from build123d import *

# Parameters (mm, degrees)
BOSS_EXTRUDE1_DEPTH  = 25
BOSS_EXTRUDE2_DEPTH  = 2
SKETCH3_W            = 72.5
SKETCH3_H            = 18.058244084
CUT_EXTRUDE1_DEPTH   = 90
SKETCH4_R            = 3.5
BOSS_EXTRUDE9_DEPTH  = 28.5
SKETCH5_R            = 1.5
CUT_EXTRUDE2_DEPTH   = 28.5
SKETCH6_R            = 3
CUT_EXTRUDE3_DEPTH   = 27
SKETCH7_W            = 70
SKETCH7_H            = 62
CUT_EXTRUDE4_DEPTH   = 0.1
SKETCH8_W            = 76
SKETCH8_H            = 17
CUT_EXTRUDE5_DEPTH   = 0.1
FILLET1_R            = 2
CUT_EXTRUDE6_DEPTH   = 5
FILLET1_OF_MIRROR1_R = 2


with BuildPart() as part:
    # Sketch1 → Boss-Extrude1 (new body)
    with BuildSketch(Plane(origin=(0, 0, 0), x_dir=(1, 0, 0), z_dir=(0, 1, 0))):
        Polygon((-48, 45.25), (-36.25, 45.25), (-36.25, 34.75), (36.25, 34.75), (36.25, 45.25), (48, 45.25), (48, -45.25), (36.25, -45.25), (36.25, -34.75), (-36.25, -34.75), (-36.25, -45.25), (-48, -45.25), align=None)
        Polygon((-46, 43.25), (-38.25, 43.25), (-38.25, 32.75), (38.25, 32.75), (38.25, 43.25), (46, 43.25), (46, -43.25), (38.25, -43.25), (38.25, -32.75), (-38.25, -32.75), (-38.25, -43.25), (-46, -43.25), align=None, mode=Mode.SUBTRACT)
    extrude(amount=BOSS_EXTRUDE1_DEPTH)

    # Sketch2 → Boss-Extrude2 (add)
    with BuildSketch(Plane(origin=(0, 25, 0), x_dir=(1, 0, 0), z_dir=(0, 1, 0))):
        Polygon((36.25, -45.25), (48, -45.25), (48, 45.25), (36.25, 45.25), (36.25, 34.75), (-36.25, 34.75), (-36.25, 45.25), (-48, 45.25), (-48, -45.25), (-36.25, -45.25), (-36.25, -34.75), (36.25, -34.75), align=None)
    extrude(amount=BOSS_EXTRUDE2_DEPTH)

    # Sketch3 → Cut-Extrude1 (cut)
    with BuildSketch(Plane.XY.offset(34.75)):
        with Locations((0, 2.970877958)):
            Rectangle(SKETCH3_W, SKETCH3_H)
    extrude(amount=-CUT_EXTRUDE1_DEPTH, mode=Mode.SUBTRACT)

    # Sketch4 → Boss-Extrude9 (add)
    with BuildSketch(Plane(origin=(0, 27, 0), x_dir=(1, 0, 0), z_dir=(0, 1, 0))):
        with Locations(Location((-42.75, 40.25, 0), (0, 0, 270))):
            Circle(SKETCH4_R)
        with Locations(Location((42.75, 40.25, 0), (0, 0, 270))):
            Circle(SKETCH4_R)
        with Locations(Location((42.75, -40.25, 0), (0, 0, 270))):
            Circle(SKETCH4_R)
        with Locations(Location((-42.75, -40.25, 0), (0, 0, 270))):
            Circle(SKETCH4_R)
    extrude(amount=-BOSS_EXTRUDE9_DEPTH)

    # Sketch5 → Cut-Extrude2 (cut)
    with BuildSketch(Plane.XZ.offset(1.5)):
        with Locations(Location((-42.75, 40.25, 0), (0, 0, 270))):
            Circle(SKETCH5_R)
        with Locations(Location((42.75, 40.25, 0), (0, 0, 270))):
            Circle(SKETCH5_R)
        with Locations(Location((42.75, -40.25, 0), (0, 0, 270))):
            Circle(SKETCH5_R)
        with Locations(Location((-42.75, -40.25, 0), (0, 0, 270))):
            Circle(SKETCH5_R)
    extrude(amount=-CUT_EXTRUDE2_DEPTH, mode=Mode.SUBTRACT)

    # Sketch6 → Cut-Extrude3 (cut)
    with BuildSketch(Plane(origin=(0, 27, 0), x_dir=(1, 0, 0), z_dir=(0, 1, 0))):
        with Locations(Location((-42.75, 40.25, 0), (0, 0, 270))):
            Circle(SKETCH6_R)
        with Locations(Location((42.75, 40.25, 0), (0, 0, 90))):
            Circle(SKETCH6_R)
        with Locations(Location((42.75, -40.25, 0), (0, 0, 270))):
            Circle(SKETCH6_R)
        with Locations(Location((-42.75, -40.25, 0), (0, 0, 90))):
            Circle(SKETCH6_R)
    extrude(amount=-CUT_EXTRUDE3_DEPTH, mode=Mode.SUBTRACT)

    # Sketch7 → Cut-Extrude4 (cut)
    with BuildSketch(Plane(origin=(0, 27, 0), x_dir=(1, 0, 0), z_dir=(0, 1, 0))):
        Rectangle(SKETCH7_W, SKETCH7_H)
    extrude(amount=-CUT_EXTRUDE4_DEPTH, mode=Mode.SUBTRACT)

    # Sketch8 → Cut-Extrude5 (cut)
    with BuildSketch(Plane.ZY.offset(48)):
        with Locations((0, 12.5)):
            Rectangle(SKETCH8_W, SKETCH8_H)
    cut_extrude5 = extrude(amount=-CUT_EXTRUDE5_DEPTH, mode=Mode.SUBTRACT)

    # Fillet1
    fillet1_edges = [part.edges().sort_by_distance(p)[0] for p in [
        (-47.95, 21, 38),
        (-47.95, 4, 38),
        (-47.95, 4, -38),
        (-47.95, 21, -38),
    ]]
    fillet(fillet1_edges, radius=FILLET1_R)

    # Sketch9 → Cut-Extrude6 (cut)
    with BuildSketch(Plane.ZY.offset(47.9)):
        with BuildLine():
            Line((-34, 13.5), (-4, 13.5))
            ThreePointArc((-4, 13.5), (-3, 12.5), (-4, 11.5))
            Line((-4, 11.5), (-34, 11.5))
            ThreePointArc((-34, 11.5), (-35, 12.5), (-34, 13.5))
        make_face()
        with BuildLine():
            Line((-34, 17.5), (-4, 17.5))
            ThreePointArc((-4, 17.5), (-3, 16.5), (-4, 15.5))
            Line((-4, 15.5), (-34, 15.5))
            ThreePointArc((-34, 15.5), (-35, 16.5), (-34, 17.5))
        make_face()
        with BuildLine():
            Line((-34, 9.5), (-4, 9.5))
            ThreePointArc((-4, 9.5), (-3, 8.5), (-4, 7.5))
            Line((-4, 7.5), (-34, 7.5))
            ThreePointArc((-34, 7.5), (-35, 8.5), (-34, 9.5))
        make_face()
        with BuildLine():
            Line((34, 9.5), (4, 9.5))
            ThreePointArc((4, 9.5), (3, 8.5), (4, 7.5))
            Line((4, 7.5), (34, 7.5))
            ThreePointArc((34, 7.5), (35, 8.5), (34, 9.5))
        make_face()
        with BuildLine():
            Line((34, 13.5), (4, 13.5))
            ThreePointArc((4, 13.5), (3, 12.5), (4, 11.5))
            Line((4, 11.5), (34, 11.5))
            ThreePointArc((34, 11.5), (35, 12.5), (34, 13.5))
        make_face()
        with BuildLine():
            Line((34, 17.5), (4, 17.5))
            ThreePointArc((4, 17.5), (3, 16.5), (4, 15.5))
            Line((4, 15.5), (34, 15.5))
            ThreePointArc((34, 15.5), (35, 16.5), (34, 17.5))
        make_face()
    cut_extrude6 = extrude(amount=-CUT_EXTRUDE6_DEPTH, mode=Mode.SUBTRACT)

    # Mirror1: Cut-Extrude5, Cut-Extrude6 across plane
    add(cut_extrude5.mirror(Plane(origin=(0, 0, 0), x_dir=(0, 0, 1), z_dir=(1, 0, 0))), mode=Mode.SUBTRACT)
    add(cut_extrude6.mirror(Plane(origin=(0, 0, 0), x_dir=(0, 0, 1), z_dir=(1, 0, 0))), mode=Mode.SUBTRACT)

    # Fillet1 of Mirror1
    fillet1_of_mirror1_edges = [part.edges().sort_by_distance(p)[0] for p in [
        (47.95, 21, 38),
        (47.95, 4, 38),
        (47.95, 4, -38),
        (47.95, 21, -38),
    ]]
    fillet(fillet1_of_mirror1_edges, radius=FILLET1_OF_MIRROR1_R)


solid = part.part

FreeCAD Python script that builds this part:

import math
import FreeCAD as App
import Part
import Sketcher
Q = App.Units.Quantity


def edges_at(feature, points):
    """Names of the edges that pass closest to the given points."""
    edges = feature.Shape.Edges
    near = lambda p: min(range(len(edges)), key=lambda i: edges[i].distToShape(Part.Vertex(*p))[0])
    return sorted({f"Edge{near(p) + 1}" for p in points})


def add_polygon(sketch, points):
    """Adds a closed chain of lines whose ends are joined by coincident constraints."""
    first, n = sketch.GeometryCount, len(points)
    for a, b in zip(points, points[1:] + points[:1]):
        sketch.addGeometry(Part.LineSegment(App.Vector(*a, 0), App.Vector(*b, 0)), False)
    for i in range(n):
        sketch.addConstraint(Sketcher.Constraint("Coincident", first + i, 2, first + (i + 1) % n, 1))

doc = App.newDocument("Part")
params = doc.addObject("Spreadsheet::Sheet", "Params")
for row, (alias, value) in enumerate([
    ("sketch1_width", "72.5 mm"),
    ("sketch1_width2", "76.5 mm"),
    ("sketch1_height", "90.5 mm"),
    ("sketch1_height2", "10.5 mm"),
    ("sketch1_height3", "86.5 mm"),
    ("pad1_length", "25 mm"),
    ("sketch2_width", "72.5 mm"),
    ("sketch2_height", "90.5 mm"),
    ("sketch2_height2", "10.5 mm"),
    ("pad2_length", "2 mm"),
    ("sketch3_width", "72.5 mm"),
    ("pocket1_length", "90 mm"),
    ("sketch4_diameter", "7 mm"),
    ("pad3_length", "28.5 mm"),
    ("sketch5_diameter", "3 mm"),
    ("pocket2_length", "28.5 mm"),
    ("sketch6_diameter", "6 mm"),
    ("pocket3_length", "27 mm"),
    ("sketch7_width", "70 mm"),
    ("sketch7_height", "62 mm"),
    ("pocket4_length", "0.1 mm"),
    ("sketch8_width", "17 mm"),
    ("sketch8_height", "76 mm"),
    ("pocket5_length", "0.1 mm"),
    ("fillet_radius", "2 mm"),
    ("sketch9_radius", "1 mm"),
    ("sketch9_height", "30 mm"),
    ("pocket6_length", "5 mm"),
    ("fillet2_radius", "2 mm"),
], start=1):
    params.set(f"A{row}", alias)
    params.set(f"B{row}", "=" + value)
    params.setAlias(f"B{row}", alias)

body = doc.addObject("PartDesign::Body", "Body")

# Sketch on XZ plane
sketch1 = body.newObject("Sketcher::SketchObject", "Sketch")
sketch1.AttachmentSupport = (doc.getObject("XZ_Plane"), [""])
sketch1.MapMode = "FlatFace"
add_polygon(sketch1, [(-36, -45), (-48, -45), (-48, 45), (-36, 45), (-36, 35), (36, 35), (36, 45), (48, 45), (48, -45), (36, -45), (36, -35), (-36, -35)])  # lines 0-11
add_polygon(sketch1, [(-46, -43), (-38, -43), (-38, -33), (38, -33), (38, -43), (46, -43), (46, 43), (38, 43), (38, 33), (-38, 33), (-38, 43), (-46, 43)])  # lines 12-23
sketch1.addConstraint(Sketcher.Constraint("Horizontal", 0))
sketch1.addConstraint(Sketcher.Constraint("Vertical", 1))
sketch1.addConstraint(Sketcher.Constraint("Horizontal", 2))
sketch1.addConstraint(Sketcher.Constraint("Vertical", 3))
sketch1.addConstraint(Sketcher.Constraint("Horizontal", 4))
sketch1.addConstraint(Sketcher.Constraint("Vertical", 5))
sketch1.addConstraint(Sketcher.Constraint("Horizontal", 6))
sketch1.addConstraint(Sketcher.Constraint("Vertical", 7))
sketch1.addConstraint(Sketcher.Constraint("Horizontal", 8))
sketch1.addConstraint(Sketcher.Constraint("Vertical", 9))
sketch1.addConstraint(Sketcher.Constraint("Horizontal", 10))
sketch1.addConstraint(Sketcher.Constraint("Vertical", 11))
sketch1.addConstraint(Sketcher.Constraint("Horizontal", 12))
sketch1.addConstraint(Sketcher.Constraint("Vertical", 13))
sketch1.addConstraint(Sketcher.Constraint("Horizontal", 14))
sketch1.addConstraint(Sketcher.Constraint("Vertical", 15))
sketch1.addConstraint(Sketcher.Constraint("Horizontal", 16))
sketch1.addConstraint(Sketcher.Constraint("Vertical", 17))
sketch1.addConstraint(Sketcher.Constraint("Horizontal", 18))
sketch1.addConstraint(Sketcher.Constraint("Vertical", 19))
sketch1.addConstraint(Sketcher.Constraint("Horizontal", 20))
sketch1.addConstraint(Sketcher.Constraint("Vertical", 21))
sketch1.addConstraint(Sketcher.Constraint("Horizontal", 22))
sketch1.addConstraint(Sketcher.Constraint("Vertical", 23))
sketch1.addConstraint(Sketcher.Constraint("Symmetric", 0, 2, 6, 2, -1, 1))
sketch1.addConstraint(Sketcher.Constraint("Symmetric", 2, 2, 8, 2, -1, 1))
sketch1.addConstraint(Sketcher.Constraint("Symmetric", 4, 2, 10, 2, -1, 1))
sketch1.addConstraint(Sketcher.Constraint("Symmetric", 12, 2, 18, 2, -1, 1))
sketch1.addConstraint(Sketcher.Constraint("Symmetric", 14, 2, 20, 2, -1, 1))
sketch1.addConstraint(Sketcher.Constraint("Symmetric", 16, 2, 22, 2, -1, 1))
sketch1.addConstraint(Sketcher.Constraint("Symmetric", 2, 2, 5, 2, -2))
sketch1.addConstraint(Sketcher.Constraint("Symmetric", 12, 2, 15, 2, -2))
sketch1.addConstraint(Sketcher.Constraint("Equal", 11, 13))
sketch1.addConstraint(Sketcher.Constraint("DistanceX", 4, 1, 4, 2, Q("72.5 mm")))
sketch1.addConstraint(Sketcher.Constraint("DistanceX", 14, 1, 14, 2, Q("76.5 mm")))
sketch1.addConstraint(Sketcher.Constraint("DistanceY", 1, 1, 1, 2, Q("90.5 mm")))
sketch1.addConstraint(Sketcher.Constraint("DistanceY", 3, 2, 3, 1, Q("10.5 mm")))
sketch1.addConstraint(Sketcher.Constraint("DistanceY", 17, 1, 17, 2, Q("86.5 mm")))
sketch1.addConstraint(Sketcher.Constraint("DistanceX", 0, 2, -1, 1, Q("48 mm")))
sketch1.addConstraint(Sketcher.Constraint("DistanceX", -1, 1, 16, 2, Q("46 mm")))
sketch1.setExpression("Constraints[57]", "Params.sketch1_width")
sketch1.setExpression("Constraints[58]", "Params.sketch1_width2")
sketch1.setExpression("Constraints[59]", "Params.sketch1_height")
sketch1.setExpression("Constraints[60]", "Params.sketch1_height2")
sketch1.setExpression("Constraints[61]", "Params.sketch1_height3")
pad1 = body.newObject("PartDesign::Pad", "Pad")
pad1.Profile = sketch1
pad1.setExpression("Length", "Params.pad1_length")
pad1.Reversed = True

# Sketch on XZ plane
sketch2 = body.newObject("Sketcher::SketchObject", "Sketch001")
sketch2.AttachmentSupport = (doc.getObject("XZ_Plane"), [""])
sketch2.MapMode = "FlatFace"
sketch2.AttachmentOffset = App.Placement(App.Vector(0, 0, -25), App.Rotation())
add_polygon(sketch2, [(36, 45), (48, 45), (48, -45), (36, -45), (36, -35), (-36, -35), (-36, -45), (-48, -45), (-48, 45), (-36, 45), (-36, 35), (36, 35)])  # lines 0-11
sketch2.addConstraint(Sketcher.Constraint("Horizontal", 0))
sketch2.addConstraint(Sketcher.Constraint("Vertical", 1))
sketch2.addConstraint(Sketcher.Constraint("Horizontal", 2))
sketch2.addConstraint(Sketcher.Constraint("Vertical", 3))
sketch2.addConstraint(Sketcher.Constraint("Horizontal", 4))
sketch2.addConstraint(Sketcher.Constraint("Vertical", 5))
sketch2.addConstraint(Sketcher.Constraint("Horizontal", 6))
sketch2.addConstraint(Sketcher.Constraint("Vertical", 7))
sketch2.addConstraint(Sketcher.Constraint("Horizontal", 8))
sketch2.addConstraint(Sketcher.Constraint("Vertical", 9))
sketch2.addConstraint(Sketcher.Constraint("Horizontal", 10))
sketch2.addConstraint(Sketcher.Constraint("Vertical", 11))
sketch2.addConstraint(Sketcher.Constraint("Symmetric", 0, 2, 6, 2, -1, 1))
sketch2.addConstraint(Sketcher.Constraint("Symmetric", 2, 2, 8, 2, -1, 1))
sketch2.addConstraint(Sketcher.Constraint("Symmetric", 4, 2, 10, 2, -1, 1))
sketch2.addConstraint(Sketcher.Constraint("Symmetric", 2, 2, 5, 2, -2))
sketch2.addConstraint(Sketcher.Constraint("DistanceX", 4, 2, 4, 1, Q("72.5 mm")))
sketch2.addConstraint(Sketcher.Constraint("DistanceY", 1, 2, 1, 1, Q("90.5 mm")))
sketch2.addConstraint(Sketcher.Constraint("DistanceY", 3, 1, 3, 2, Q("10.5 mm")))
sketch2.addConstraint(Sketcher.Constraint("DistanceX", -1, 1, 0, 2, Q("48 mm")))
sketch2.setExpression("Constraints[28]", "Params.sketch2_width")
sketch2.setExpression("Constraints[29]", "Params.sketch2_height")
sketch2.setExpression("Constraints[30]", "Params.sketch2_height2")
pad2 = body.newObject("PartDesign::Pad", "Pad001")
pad2.Profile = sketch2
pad2.setExpression("Length", "Params.pad2_length")
pad2.Reversed = True

# Sketch on XY plane
sketch3 = body.newObject("Sketcher::SketchObject", "Sketch002")
sketch3.AttachmentSupport = (doc.getObject("XY_Plane"), [""])
sketch3.MapMode = "FlatFace"
sketch3.AttachmentOffset = App.Placement(App.Vector(0, 0, 34.75), App.Rotation())
add_polygon(sketch3, [(-36, 12), (-36, -6), (36, -6), (36, 12)])  # lines 0-3
sketch3.addConstraint(Sketcher.Constraint("Vertical", 0))
sketch3.addConstraint(Sketcher.Constraint("Horizontal", 1))
sketch3.addConstraint(Sketcher.Constraint("Vertical", 2))
sketch3.addConstraint(Sketcher.Constraint("Horizontal", 3))
sketch3.addConstraint(Sketcher.Constraint("DistanceX", 1, 1, 1, 2, Q("72.5 mm")))
sketch3.addConstraint(Sketcher.Constraint("DistanceY", -1, 1, 2, 2, Q("12 mm")))
sketch3.addConstraint(Sketcher.Constraint("DistanceX", 0, 2, -1, 1, Q("36.25 mm")))
sketch3.addConstraint(Sketcher.Constraint("DistanceY", 0, 2, 0, 1, Q("18.058244 mm")))
sketch3.setExpression("Constraints[8]", "Params.sketch3_width")
pocket1 = body.newObject("PartDesign::Pocket", "Pocket")
pocket1.Profile = sketch3
pocket1.setExpression("Length", "Params.pocket1_length")

# Sketch on XZ plane
sketch4 = body.newObject("Sketcher::SketchObject", "Sketch003")
sketch4.AttachmentSupport = (doc.getObject("XZ_Plane"), [""])
sketch4.MapMode = "FlatFace"
sketch4.AttachmentOffset = App.Placement(App.Vector(0, 0, -27), App.Rotation())
sketch4.addGeometry(Part.Circle(App.Vector(-42.8, -40.2, 0), App.Vector(0, 0, 1), 3.5), False)
sketch4.addGeometry(Part.Circle(App.Vector(42.8, -40.2, 0), App.Vector(0, 0, 1), 3.5), False)
sketch4.addGeometry(Part.Circle(App.Vector(42.8, 40.2, 0), App.Vector(0, 0, 1), 3.5), False)
sketch4.addGeometry(Part.Circle(App.Vector(-42.8, 40.2, 0), App.Vector(0, 0, 1), 3.5), False)
sketch4.addConstraint(Sketcher.Constraint("Equal", 0, 1))
sketch4.addConstraint(Sketcher.Constraint("Equal", 1, 2))
sketch4.addConstraint(Sketcher.Constraint("Equal", 2, 3))
sketch4.addConstraint(Sketcher.Constraint("Symmetric", 0, 3, 2, 3, -1, 1))
sketch4.addConstraint(Sketcher.Constraint("Symmetric", 1, 3, 3, 3, -1, 1))
sketch4.addConstraint(Sketcher.Constraint("Symmetric", 0, 3, 1, 3, -2))
sketch4.addConstraint(Sketcher.Constraint("Diameter", 0, Q("7 mm")))
sketch4.addConstraint(Sketcher.Constraint("DistanceX", 0, 3, 1, 3, Q("85.5 mm")))
sketch4.addConstraint(Sketcher.Constraint("DistanceY", 1, 3, 2, 3, Q("80.5 mm")))
sketch4.setExpression("Constraints[6]", "Params.sketch4_diameter")
pad3 = body.newObject("PartDesign::Pad", "Pad002")
pad3.Profile = sketch4
pad3.setExpression("Length", "Params.pad3_length")

# Sketch on XZ plane
sketch5 = body.newObject("Sketcher::SketchObject", "Sketch004")
sketch5.AttachmentSupport = (doc.getObject("XZ_Plane"), [""])
sketch5.MapMode = "FlatFace"
sketch5.AttachmentOffset = App.Placement(App.Vector(0, 0, 1.5), App.Rotation())
sketch5.addGeometry(Part.Circle(App.Vector(-42.8, 40.2, 0), App.Vector(0, 0, 1), 1.5), False)
sketch5.addGeometry(Part.Circle(App.Vector(42.8, 40.2, 0), App.Vector(0, 0, 1), 1.5), False)
sketch5.addGeometry(Part.Circle(App.Vector(42.8, -40.2, 0), App.Vector(0, 0, 1), 1.5), False)
sketch5.addGeometry(Part.Circle(App.Vector(-42.8, -40.2, 0), App.Vector(0, 0, 1), 1.5), False)
sketch5.addConstraint(Sketcher.Constraint("Equal", 0, 1))
sketch5.addConstraint(Sketcher.Constraint("Equal", 1, 2))
sketch5.addConstraint(Sketcher.Constraint("Equal", 2, 3))
sketch5.addConstraint(Sketcher.Constraint("Symmetric", 0, 3, 2, 3, -1, 1))
sketch5.addConstraint(Sketcher.Constraint("Symmetric", 1, 3, 3, 3, -1, 1))
sketch5.addConstraint(Sketcher.Constraint("Symmetric", 0, 3, 1, 3, -2))
sketch5.addConstraint(Sketcher.Constraint("Diameter", 0, Q("3 mm")))
sketch5.addConstraint(Sketcher.Constraint("DistanceX", 0, 3, 1, 3, Q("85.5 mm")))
sketch5.addConstraint(Sketcher.Constraint("DistanceY", 2, 3, 1, 3, Q("80.5 mm")))
sketch5.setExpression("Constraints[6]", "Params.sketch5_diameter")
pocket2 = body.newObject("PartDesign::Pocket", "Pocket001")
pocket2.Profile = sketch5
pocket2.setExpression("Length", "Params.pocket2_length")

# Sketch on XZ plane
sketch6 = body.newObject("Sketcher::SketchObject", "Sketch005")
sketch6.AttachmentSupport = (doc.getObject("XZ_Plane"), [""])
sketch6.MapMode = "FlatFace"
sketch6.AttachmentOffset = App.Placement(App.Vector(0, 0, -27), App.Rotation())
sketch6.addGeometry(Part.Circle(App.Vector(-42.8, -40.2, 0), App.Vector(0, 0, 1), 3), False)
sketch6.addGeometry(Part.Circle(App.Vector(42.8, -40.2, 0), App.Vector(0, 0, 1), 3), False)
sketch6.addGeometry(Part.Circle(App.Vector(42.8, 40.2, 0), App.Vector(0, 0, 1), 3), False)
sketch6.addGeometry(Part.Circle(App.Vector(-42.8, 40.2, 0), App.Vector(0, 0, 1), 3), False)
sketch6.addConstraint(Sketcher.Constraint("Equal", 0, 1))
sketch6.addConstraint(Sketcher.Constraint("Equal", 1, 2))
sketch6.addConstraint(Sketcher.Constraint("Equal", 2, 3))
sketch6.addConstraint(Sketcher.Constraint("Symmetric", 0, 3, 2, 3, -1, 1))
sketch6.addConstraint(Sketcher.Constraint("Symmetric", 1, 3, 3, 3, -1, 1))
sketch6.addConstraint(Sketcher.Constraint("Symmetric", 0, 3, 1, 3, -2))
sketch6.addConstraint(Sketcher.Constraint("Diameter", 0, Q("6 mm")))
sketch6.addConstraint(Sketcher.Constraint("DistanceX", 0, 3, 1, 3, Q("85.5 mm")))
sketch6.addConstraint(Sketcher.Constraint("DistanceY", 1, 3, 2, 3, Q("80.5 mm")))
sketch6.setExpression("Constraints[6]", "Params.sketch6_diameter")
pocket3 = body.newObject("PartDesign::Pocket", "Pocket002")
pocket3.Profile = sketch6
pocket3.setExpression("Length", "Params.pocket3_length")
pocket3.Reversed = True

# Sketch on XZ plane
sketch7 = body.newObject("Sketcher::SketchObject", "Sketch006")
sketch7.AttachmentSupport = (doc.getObject("XZ_Plane"), [""])
sketch7.MapMode = "FlatFace"
sketch7.AttachmentOffset = App.Placement(App.Vector(0, 0, -27), App.Rotation())
add_polygon(sketch7, [(-35, -31), (-35, 31), (35, 31), (35, -31)])  # lines 0-3
sketch7.addConstraint(Sketcher.Constraint("Vertical", 0))
sketch7.addConstraint(Sketcher.Constraint("Horizontal", 1))
sketch7.addConstraint(Sketcher.Constraint("Vertical", 2))
sketch7.addConstraint(Sketcher.Constraint("Horizontal", 3))
sketch7.addConstraint(Sketcher.Constraint("Symmetric", 0, 2, 2, 2, -1, 1))
sketch7.addConstraint(Sketcher.Constraint("DistanceX", 1, 1, 1, 2, Q("70 mm")))
sketch7.addConstraint(Sketcher.Constraint("DistanceY", 0, 1, 0, 2, Q("62 mm")))
sketch7.setExpression("Constraints[9]", "Params.sketch7_width")
sketch7.setExpression("Constraints[10]", "Params.sketch7_height")
pocket4 = body.newObject("PartDesign::Pocket", "Pocket003")
pocket4.Profile = sketch7
pocket4.setExpression("Length", "Params.pocket4_length")
pocket4.Reversed = True

# Sketch on YZ plane
sketch8 = body.newObject("Sketcher::SketchObject", "Sketch007")
sketch8.AttachmentSupport = (doc.getObject("YZ_Plane"), [""])
sketch8.MapMode = "FlatFace"
sketch8.AttachmentOffset = App.Placement(App.Vector(0, 0, -48), App.Rotation())
add_polygon(sketch8, [(21, -38), (4, -38), (4, 38), (21, 38)])  # lines 0-3
sketch8.addConstraint(Sketcher.Constraint("Horizontal", 0))
sketch8.addConstraint(Sketcher.Constraint("Vertical", 1))
sketch8.addConstraint(Sketcher.Constraint("Horizontal", 2))
sketch8.addConstraint(Sketcher.Constraint("Vertical", 3))
sketch8.addConstraint(Sketcher.Constraint("DistanceX", 0, 2, 0, 1, Q("17 mm")))
sketch8.addConstraint(Sketcher.Constraint("DistanceY", 1, 1, 1, 2, Q("76 mm")))
sketch8.addConstraint(Sketcher.Constraint("DistanceX", -1, 1, 0, 2, Q("4 mm")))
sketch8.addConstraint(Sketcher.Constraint("DistanceY", 0, 2, -1, 1, Q("38 mm")))
sketch8.setExpression("Constraints[8]", "Params.sketch8_width")
sketch8.setExpression("Constraints[9]", "Params.sketch8_height")
pocket5 = body.newObject("PartDesign::Pocket", "Pocket004")
pocket5.Profile = sketch8
pocket5.setExpression("Length", "Params.pocket5_length")
pocket5.Reversed = True
doc.recompute()

fillet = body.newObject("PartDesign::Fillet", "Fillet")
fillet.Base = (pocket5, edges_at(pocket5, [
    (-47.95, 21, 38),
    (-47.95, 4, 38),
    (-47.95, 4, -38),
    (-47.95, 21, -38),
]))
fillet.setExpression("Radius", "Params.fillet_radius")

# Sketch on YZ plane
sketch9 = body.newObject("Sketcher::SketchObject", "Sketch008")
sketch9.AttachmentSupport = (doc.getObject("YZ_Plane"), [""])
sketch9.MapMode = "FlatFace"
sketch9.AttachmentOffset = App.Placement(App.Vector(0, 0, -47.9), App.Rotation())
sketch9.addGeometry(Part.LineSegment(App.Vector(13.5, -4, 0), App.Vector(13.5, -34, 0)), False)
sketch9.addGeometry(Part.ArcOfCircle(Part.Circle(App.Vector(12.5, -34, 0), App.Vector(0, 0, 1), 1), math.radians(180), math.radians(360)), False)
sketch9.addGeometry(Part.LineSegment(App.Vector(11.5, -34, 0), App.Vector(11.5, -4, 0)), False)
sketch9.addGeometry(Part.ArcOfCircle(Part.Circle(App.Vector(12.5, -4, 0), App.Vector(0, 0, 1), 1), math.radians(0), math.radians(180)), False)
sketch9.addGeometry(Part.LineSegment(App.Vector(17.5, -4, 0), App.Vector(17.5, -34, 0)), False)
sketch9.addGeometry(Part.ArcOfCircle(Part.Circle(App.Vector(16.5, -34, 0), App.Vector(0, 0, 1), 1), math.radians(180), math.radians(360)), False)
sketch9.addGeometry(Part.LineSegment(App.Vector(15.5, -34, 0), App.Vector(15.5, -4, 0)), False)
sketch9.addGeometry(Part.ArcOfCircle(Part.Circle(App.Vector(16.5, -4, 0), App.Vector(0, 0, 1), 1), math.radians(0), math.radians(180)), False)
sketch9.addGeometry(Part.LineSegment(App.Vector(9.5, -4, 0), App.Vector(9.5, -34, 0)), False)
sketch9.addGeometry(Part.ArcOfCircle(Part.Circle(App.Vector(8.5, -34, 0), App.Vector(0, 0, 1), 1), math.radians(180), math.radians(360)), False)
sketch9.addGeometry(Part.LineSegment(App.Vector(7.5, -34, 0), App.Vector(7.5, -4, 0)), False)
sketch9.addGeometry(Part.ArcOfCircle(Part.Circle(App.Vector(8.5, -4, 0), App.Vector(0, 0, 1), 1), math.radians(0), math.radians(180)), False)
sketch9.addGeometry(Part.LineSegment(App.Vector(9.5, 34, 0), App.Vector(9.5, 4, 0)), False)
sketch9.addGeometry(Part.ArcOfCircle(Part.Circle(App.Vector(8.5, 4, 0), App.Vector(0, 0, 1), 1), math.radians(180), math.radians(360)), False)
sketch9.addGeometry(Part.LineSegment(App.Vector(7.5, 4, 0), App.Vector(7.5, 34, 0)), False)
sketch9.addGeometry(Part.ArcOfCircle(Part.Circle(App.Vector(8.5, 34, 0), App.Vector(0, 0, 1), 1), math.radians(0), math.radians(180)), False)
sketch9.addGeometry(Part.LineSegment(App.Vector(13.5, 34, 0), App.Vector(13.5, 4, 0)), False)
sketch9.addGeometry(Part.ArcOfCircle(Part.Circle(App.Vector(12.5, 4, 0), App.Vector(0, 0, 1), 1), math.radians(180), math.radians(360)), False)
sketch9.addGeometry(Part.LineSegment(App.Vector(11.5, 4, 0), App.Vector(11.5, 34, 0)), False)
sketch9.addGeometry(Part.ArcOfCircle(Part.Circle(App.Vector(12.5, 34, 0), App.Vector(0, 0, 1), 1), math.radians(0), math.radians(180)), False)
sketch9.addGeometry(Part.LineSegment(App.Vector(17.5, 34, 0), App.Vector(17.5, 4, 0)), False)
sketch9.addGeometry(Part.ArcOfCircle(Part.Circle(App.Vector(16.5, 4, 0), App.Vector(0, 0, 1), 1), math.radians(180), math.radians(360)), False)
sketch9.addGeometry(Part.LineSegment(App.Vector(15.5, 4, 0), App.Vector(15.5, 34, 0)), False)
sketch9.addGeometry(Part.ArcOfCircle(Part.Circle(App.Vector(16.5, 34, 0), App.Vector(0, 0, 1), 1), math.radians(0), math.radians(180)), False)
sketch9.addConstraint(Sketcher.Constraint("Tangent", 0, 2, 1, 2))
sketch9.addConstraint(Sketcher.Constraint("Tangent", 1, 1, 2, 1))
sketch9.addConstraint(Sketcher.Constraint("Tangent", 2, 2, 3, 2))
sketch9.addConstraint(Sketcher.Constraint("Tangent", 3, 1, 0, 1))
sketch9.addConstraint(Sketcher.Constraint("Tangent", 4, 2, 5, 2))
sketch9.addConstraint(Sketcher.Constraint("Tangent", 5, 1, 6, 1))
sketch9.addConstraint(Sketcher.Constraint("Tangent", 6, 2, 7, 2))
sketch9.addConstraint(Sketcher.Constraint("Tangent", 7, 1, 4, 1))
sketch9.addConstraint(Sketcher.Constraint("Tangent", 8, 2, 9, 2))
sketch9.addConstraint(Sketcher.Constraint("Tangent", 9, 1, 10, 1))
sketch9.addConstraint(Sketcher.Constraint("Tangent", 10, 2, 11, 2))
sketch9.addConstraint(Sketcher.Constraint("Tangent", 11, 1, 8, 1))
sketch9.addConstraint(Sketcher.Constraint("Tangent", 12, 2, 13, 2))
sketch9.addConstraint(Sketcher.Constraint("Tangent", 13, 1, 14, 1))
sketch9.addConstraint(Sketcher.Constraint("Tangent", 14, 2, 15, 2))
sketch9.addConstraint(Sketcher.Constraint("Tangent", 15, 1, 12, 1))
sketch9.addConstraint(Sketcher.Constraint("Tangent", 16, 2, 17, 2))
sketch9.addConstraint(Sketcher.Constraint("Tangent", 17, 1, 18, 1))
sketch9.addConstraint(Sketcher.Constraint("Tangent", 18, 2, 19, 2))
sketch9.addConstraint(Sketcher.Constraint("Tangent", 19, 1, 16, 1))
sketch9.addConstraint(Sketcher.Constraint("Tangent", 20, 2, 21, 2))
sketch9.addConstraint(Sketcher.Constraint("Tangent", 21, 1, 22, 1))
sketch9.addConstraint(Sketcher.Constraint("Tangent", 22, 2, 23, 2))
sketch9.addConstraint(Sketcher.Constraint("Tangent", 23, 1, 20, 1))
sketch9.addConstraint(Sketcher.Constraint("Vertical", 0))
sketch9.addConstraint(Sketcher.Constraint("Vertical", 2))
sketch9.addConstraint(Sketcher.Constraint("Vertical", 4))
sketch9.addConstraint(Sketcher.Constraint("Vertical", 6))
sketch9.addConstraint(Sketcher.Constraint("Vertical", 8))
sketch9.addConstraint(Sketcher.Constraint("Vertical", 10))
sketch9.addConstraint(Sketcher.Constraint("Vertical", 12))
sketch9.addConstraint(Sketcher.Constraint("Vertical", 14))
sketch9.addConstraint(Sketcher.Constraint("Vertical", 16))
sketch9.addConstraint(Sketcher.Constraint("Vertical", 18))
sketch9.addConstraint(Sketcher.Constraint("Vertical", 20))
sketch9.addConstraint(Sketcher.Constraint("Vertical", 22))
sketch9.addConstraint(Sketcher.Constraint("Equal", 3, 5))
sketch9.addConstraint(Sketcher.Constraint("Equal", 7, 9))
sketch9.addConstraint(Sketcher.Constraint("Equal", 11, 13))
sketch9.addConstraint(Sketcher.Constraint("Equal", 15, 17))
sketch9.addConstraint(Sketcher.Constraint("Equal", 19, 21))
sketch9.addConstraint(Sketcher.Constraint("Symmetric", 11, 3, 13, 3, -1))
sketch9.addConstraint(Sketcher.Constraint("Symmetric", 3, 3, 17, 3, -1))
sketch9.addConstraint(Sketcher.Constraint("Symmetric", 7, 3, 21, 3, -1))
sketch9.addConstraint(Sketcher.Constraint("Horizontal", 1, 3, 5, 3))
sketch9.addConstraint(Sketcher.Constraint("Horizontal", 3, 3, 7, 3))
sketch9.addConstraint(Sketcher.Constraint("Horizontal", 5, 3, 9, 3))
sketch9.addConstraint(Sketcher.Constraint("Horizontal", 7, 3, 11, 3))
sketch9.addConstraint(Sketcher.Constraint("Horizontal", 15, 3, 19, 3))
sketch9.addConstraint(Sketcher.Constraint("Horizontal", 19, 3, 23, 3))
sketch9.addConstraint(Sketcher.Constraint("Equal", 10, 12))
sketch9.addConstraint(Sketcher.Constraint("Radius", 1, Q("1 mm")))
sketch9.addConstraint(Sketcher.Constraint("DistanceY", 0, 2, 0, 1, Q("30 mm")))
sketch9.addConstraint(Sketcher.Constraint("DistanceY", 1, 3, -1, 1, Q("34 mm")))
sketch9.addConstraint(Sketcher.Constraint("DistanceX", 1, 3, 5, 3, Q("4 mm")))
sketch9.addConstraint(Sketcher.Constraint("DistanceX", 9, 3, 1, 3, Q("4 mm")))
sketch9.addConstraint(Sketcher.Constraint("DistanceX", -1, 1, 1, 3, Q("12.5 mm")))
sketch9.setExpression("Constraints[51]", "Params.sketch9_radius")
sketch9.setExpression("Constraints[52]", "Params.sketch9_height")
pocket6 = body.newObject("PartDesign::Pocket", "Pocket005")
pocket6.Profile = sketch9
pocket6.setExpression("Length", "Params.pocket6_length")
pocket6.Reversed = True
doc.recompute()

mirrored = body.newObject("PartDesign::Mirrored", "Mirrored")
mirrored.Originals = [pocket5, pocket6]
mirrored.MirrorPlane = (doc.getObject("YZ_Plane"), [""])
body.Tip = mirrored
doc.recompute()

fillet2 = body.newObject("PartDesign::Fillet", "Fillet001")
fillet2.Base = (mirrored, edges_at(mirrored, [
    (47.95, 21, 38),
    (47.95, 4, 38),
    (47.95, 4, -38),
    (47.95, 21, -38),
]))
fillet2.setExpression("Radius", "Params.fillet2_radius")

doc.recompute()
